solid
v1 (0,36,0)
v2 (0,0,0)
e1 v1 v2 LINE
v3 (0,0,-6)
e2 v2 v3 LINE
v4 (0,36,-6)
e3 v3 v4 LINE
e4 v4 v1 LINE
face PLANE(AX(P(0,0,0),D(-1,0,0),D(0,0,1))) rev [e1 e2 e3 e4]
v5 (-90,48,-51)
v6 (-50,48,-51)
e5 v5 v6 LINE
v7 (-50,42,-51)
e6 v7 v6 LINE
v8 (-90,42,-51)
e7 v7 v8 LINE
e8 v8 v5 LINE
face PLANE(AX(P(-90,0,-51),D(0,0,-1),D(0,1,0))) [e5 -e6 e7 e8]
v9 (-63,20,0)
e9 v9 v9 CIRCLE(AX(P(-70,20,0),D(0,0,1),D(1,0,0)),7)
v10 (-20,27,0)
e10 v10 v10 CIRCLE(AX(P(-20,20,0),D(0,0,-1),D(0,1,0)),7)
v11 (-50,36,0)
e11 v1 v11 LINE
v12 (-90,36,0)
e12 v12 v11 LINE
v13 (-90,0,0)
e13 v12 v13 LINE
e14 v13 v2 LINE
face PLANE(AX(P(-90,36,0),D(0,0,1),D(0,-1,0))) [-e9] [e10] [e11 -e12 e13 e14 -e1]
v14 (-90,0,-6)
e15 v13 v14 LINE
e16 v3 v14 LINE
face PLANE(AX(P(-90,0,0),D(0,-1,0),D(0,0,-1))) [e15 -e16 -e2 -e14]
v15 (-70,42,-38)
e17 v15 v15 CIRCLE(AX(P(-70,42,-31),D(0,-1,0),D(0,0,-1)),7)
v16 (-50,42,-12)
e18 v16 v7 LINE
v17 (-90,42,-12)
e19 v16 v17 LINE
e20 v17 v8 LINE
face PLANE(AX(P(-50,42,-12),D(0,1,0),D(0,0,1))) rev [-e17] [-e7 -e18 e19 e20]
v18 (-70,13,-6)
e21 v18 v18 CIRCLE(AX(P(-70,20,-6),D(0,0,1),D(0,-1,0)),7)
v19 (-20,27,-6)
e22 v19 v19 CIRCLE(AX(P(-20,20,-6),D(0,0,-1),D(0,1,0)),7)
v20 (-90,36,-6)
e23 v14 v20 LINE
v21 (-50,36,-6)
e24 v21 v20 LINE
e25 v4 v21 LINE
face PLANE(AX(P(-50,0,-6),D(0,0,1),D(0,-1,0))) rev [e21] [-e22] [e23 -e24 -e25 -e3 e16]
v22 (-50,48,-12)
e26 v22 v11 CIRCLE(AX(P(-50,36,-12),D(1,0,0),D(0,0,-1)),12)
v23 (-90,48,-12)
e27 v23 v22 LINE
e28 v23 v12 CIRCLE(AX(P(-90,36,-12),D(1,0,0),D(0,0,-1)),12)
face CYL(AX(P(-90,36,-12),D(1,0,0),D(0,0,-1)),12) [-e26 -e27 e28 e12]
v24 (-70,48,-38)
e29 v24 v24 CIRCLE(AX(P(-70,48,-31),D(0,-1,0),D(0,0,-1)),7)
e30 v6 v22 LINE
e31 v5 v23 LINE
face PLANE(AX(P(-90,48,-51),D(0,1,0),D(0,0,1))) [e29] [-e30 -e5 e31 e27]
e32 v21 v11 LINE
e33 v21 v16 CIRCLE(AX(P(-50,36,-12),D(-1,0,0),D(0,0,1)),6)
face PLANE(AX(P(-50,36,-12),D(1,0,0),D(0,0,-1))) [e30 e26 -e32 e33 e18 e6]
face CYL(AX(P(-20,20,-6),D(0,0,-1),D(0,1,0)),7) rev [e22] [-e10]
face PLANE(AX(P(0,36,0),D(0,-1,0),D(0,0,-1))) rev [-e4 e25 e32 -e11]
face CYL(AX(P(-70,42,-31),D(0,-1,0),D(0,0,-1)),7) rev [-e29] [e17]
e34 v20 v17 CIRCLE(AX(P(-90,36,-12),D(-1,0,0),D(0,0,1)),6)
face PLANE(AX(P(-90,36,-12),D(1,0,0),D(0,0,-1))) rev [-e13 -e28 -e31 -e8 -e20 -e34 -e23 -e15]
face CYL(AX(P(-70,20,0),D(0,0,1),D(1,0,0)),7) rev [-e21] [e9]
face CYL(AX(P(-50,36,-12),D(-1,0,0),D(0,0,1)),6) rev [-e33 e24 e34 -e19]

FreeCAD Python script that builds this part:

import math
import FreeCAD as App
import Part
import Sketcher
from FreeCAD import Vector

doc = App.newDocument("Part")
body = doc.addObject("PartDesign::Body", "Body")

# Sketch on YZ plane
sketch1 = body.newObject("Sketcher::SketchObject", "Sketch")
sketch1.AttachmentSupport = (doc.getObject("YZ_Plane"), [""])
sketch1.MapMode = "FlatFace"
sketch1.AttachmentOffset = App.Placement(Vector(0, 0, -50), App.Rotation())
sketch1.addGeometry([
    Part.LineSegment(Vector(0, 0, 0), Vector(0, -51, 0)),  # 0
    Part.LineSegment(Vector(0, -51, 0), Vector(48, -51, 0)),  # 1
    Part.LineSegment(Vector(48, -51, 0), Vector(48, -12, 0)),  # 2
    Part.ArcOfCircle(Part.Circle(Vector(36, -12, 0), Vector(0, 0, 1), 12), math.radians(0), math.radians(90)),  # 3
    Part.LineSegment(Vector(36, 0, 0), Vector(0, 0, 0)),  # 4
], False)
sketch1.addConstraint([
    Sketcher.Constraint("Coincident", 0, 2, 1, 1),
    Sketcher.Constraint("Coincident", 1, 2, 2, 1),
    Sketcher.Constraint("Tangent", 2, 2, 3, 1),
    Sketcher.Constraint("Tangent", 3, 2, 4, 1),
    Sketcher.Constraint("Coincident", 4, 2, 0, 1),
    Sketcher.Constraint("Vertical", 0),
    Sketcher.Constraint("Horizontal", 1),
    Sketcher.Constraint("Vertical", 2),
    Sketcher.Constraint("Horizontal", 4),
    Sketcher.Constraint("Coincident", 4, 2, -1, 1),
    Sketcher.Constraint("Radius", 3, 12.0),
    Sketcher.Constraint("DistanceX", 1, 1, 1, 2, 48.0),
    Sketcher.Constraint("DistanceY", 0, 2, 0, 1, 51.0),
])
pad1 = body.newObject("PartDesign::Pad", "Pad")
pad1.Profile = sketch1
pad1.Length = 40
pad1.Reversed = True

# Sketch on YZ plane
sketch2 = body.newObject("Sketcher::SketchObject", "Sketch001")
sketch2.AttachmentSupport = (doc.getObject("YZ_Plane"), [""])
sketch2.MapMode = "FlatFace"
sketch2.AttachmentOffset = App.Placement(Vector(0, 0, -90), App.Rotation())
sketch2.addGeometry([
    Part.LineSegment(Vector(0, -51, 0), Vector(0, -6, 0)),  # 0
    Part.LineSegment(Vector(0, -6, 0), Vector(36, -6, 0)),  # 1
    Part.ArcOfCircle(Part.Circle(Vector(36, -12, 0), Vector(0, 0, 1), 6), math.radians(0), math.radians(90)),  # 2
    Part.LineSegment(Vector(42, -12, 0), Vector(42, -51, 0)),  # 3
    Part.LineSegment(Vector(42, -51, 0), Vector(0, -51, 0)),  # 4
], False)
sketch2.addConstraint([
    Sketcher.Constraint("Coincident", 0, 2, 1, 1),
    Sketcher.Constraint("Tangent", 1, 2, 2, 2),
    Sketcher.Constraint("Tangent", 2, 1, 3, 1),
    Sketcher.Constraint("Coincident", 3, 2, 4, 1),
    Sketcher.Constraint("Coincident", 4, 2, 0, 1),
    Sketcher.Constraint("Vertical", 0),
    Sketcher.Constraint("Horizontal", 1),
    Sketcher.Constraint("Vertical", 3),
    Sketcher.Constraint("Horizontal", 4),
    Sketcher.Constraint("PointOnObject", 0, 2, -2),
    Sketcher.Constraint("Radius", 2, 6.0),
    Sketcher.Constraint("DistanceX", 1, 1, 1, 2, 36.0),
    Sketcher.Constraint("DistanceY", 0, 1, 0, 2, 45.0),
    Sketcher.Constraint("DistanceY", 2, 3, -1, 1, 12.0),
])
pocket1 = body.newObject("PartDesign::Pocket", "Pocket")
pocket1.Profile = sketch2
pocket1.Type = "ThroughAll"
pocket1.Reversed = True

# Sketch on YZ plane
sketch3 = body.newObject("Sketcher::SketchObject", "Sketch002")
sketch3.AttachmentSupport = (doc.getObject("YZ_Plane"), [""])
sketch3.MapMode = "FlatFace"
sketch3.AttachmentOffset = App.Placement(Vector(0, 0, -50), App.Rotation())
sketch3.addGeometry([
    Part.LineSegment(Vector(36, 0, 0), Vector(0, 0, 0)),
    Part.LineSegment(Vector(0, 0, 0), Vector(0, -6, 0)),
    Part.LineSegment(Vector(0, -6, 0), Vector(36, -6, 0)),
    Part.LineSegment(Vector(36, -6, 0), Vector(36, 0, 0)),
], False)
sketch3.addConstraint([
    Sketcher.Constraint("Coincident", 0, 2, 1, 1),
    Sketcher.Constraint("Coincident", 1, 2, 2, 1),
    Sketcher.Constraint("Coincident", 2, 2, 3, 1),
    Sketcher.Constraint("Coincident", 3, 2, 0, 1),
    Sketcher.Constraint("Horizontal", 0),
    Sketcher.Constraint("Vertical", 1),
    Sketcher.Constraint("Horizontal", 2),
    Sketcher.Constraint("Vertical", 3),
    Sketcher.Constraint("Coincident", 0, 2, -1, 1),
    Sketcher.Constraint("DistanceX", 0, 2, 0, 1, 36.0),
    Sketcher.Constraint("DistanceY", 1, 2, 1, 1, 6.0),
])
pad2 = body.newObject("PartDesign::Pad", "Pad001")
pad2.Profile = sketch3
pad2.Length = 50

# Sketch on XY plane
sketch4 = body.newObject("Sketcher::SketchObject", "Sketch003")
sketch4.AttachmentSupport = (doc.getObject("XY_Plane"), [""])
sketch4.MapMode = "FlatFace"
sketch4.addGeometry(Part.Circle(Vector(-70, 20, 0), Vector(0, 0, 1), 7), False)
sketch4.addConstraint([
    Sketcher.Constraint("Diameter", 0, 14.0),
    Sketcher.Constraint("DistanceX", 0, 3, -1, 1, 70.0),
    Sketcher.Constraint("DistanceY", -1, 1, 0, 3, 20.0),
])
doc.recompute()
hole = body.newObject("PartDesign::Hole", "Hole")
hole.Profile = sketch4
hole.ThreadType = "None"
hole.Diameter = 14
hole.DepthType = "Dimension"
hole.Depth = 51
hole.DrillPoint = "Flat"

# Sketch on XY plane
sketch5 = body.newObject("Sketcher::SketchObject", "Sketch004")
sketch5.AttachmentSupport = (doc.getObject("XY_Plane"), [""])
sketch5.MapMode = "FlatFace"
sketch5.AttachmentOffset = App.Placement(Vector(0, 0, -6), App.Rotation())
sketch5.addGeometry(Part.Circle(Vector(-20, 20, 0), Vector(0, 0, 1), 7), False)
sketch5.addConstraint([
    Sketcher.Constraint("Diameter", 0, 14.0),
    Sketcher.Constraint("DistanceX", 0, 3, -1, 1, 20.0),
    Sketcher.Constraint("DistanceY", -1, 1, 0, 3, 20.0),
])
doc.recompute()
hole2 = body.newObject("PartDesign::Hole", "Hole001")
hole2.Profile = sketch5
hole2.ThreadType = "None"
hole2.Diameter = 14
hole2.DepthType = "Dimension"
hole2.Depth = 6
hole2.DrillPoint = "Flat"
hole2.Reversed = True

# Sketch on XZ plane
sketch6 = body.newObject("Sketcher::SketchObject", "Sketch005")
sketch6.AttachmentSupport = (doc.getObject("XZ_Plane"), [""])
sketch6.MapMode = "FlatFace"
sketch6.AttachmentOffset = App.Placement(Vector(0, 0, -42), App.Rotation())
sketch6.addGeometry(Part.Circle(Vector(-70, -31, 0), Vector(0, 0, 1), 7), False)
sketch6.addConstraint([
    Sketcher.Constraint("Diameter", 0, 14.0),
    Sketcher.Constraint("DistanceX", 0, 3, -1, 1, 70.0),
    Sketcher.Constraint("DistanceY", 0, 3, -1, 1, 31.0),
])
doc.recompute()
hole3 = body.newObject("PartDesign::Hole", "Hole002")
hole3.Profile = sketch6
hole3.ThreadType = "None"
hole3.Diameter = 14
hole3.DepthType = "Dimension"
hole3.Depth = 6
hole3.DrillPoint = "Flat"

doc.recompute()
